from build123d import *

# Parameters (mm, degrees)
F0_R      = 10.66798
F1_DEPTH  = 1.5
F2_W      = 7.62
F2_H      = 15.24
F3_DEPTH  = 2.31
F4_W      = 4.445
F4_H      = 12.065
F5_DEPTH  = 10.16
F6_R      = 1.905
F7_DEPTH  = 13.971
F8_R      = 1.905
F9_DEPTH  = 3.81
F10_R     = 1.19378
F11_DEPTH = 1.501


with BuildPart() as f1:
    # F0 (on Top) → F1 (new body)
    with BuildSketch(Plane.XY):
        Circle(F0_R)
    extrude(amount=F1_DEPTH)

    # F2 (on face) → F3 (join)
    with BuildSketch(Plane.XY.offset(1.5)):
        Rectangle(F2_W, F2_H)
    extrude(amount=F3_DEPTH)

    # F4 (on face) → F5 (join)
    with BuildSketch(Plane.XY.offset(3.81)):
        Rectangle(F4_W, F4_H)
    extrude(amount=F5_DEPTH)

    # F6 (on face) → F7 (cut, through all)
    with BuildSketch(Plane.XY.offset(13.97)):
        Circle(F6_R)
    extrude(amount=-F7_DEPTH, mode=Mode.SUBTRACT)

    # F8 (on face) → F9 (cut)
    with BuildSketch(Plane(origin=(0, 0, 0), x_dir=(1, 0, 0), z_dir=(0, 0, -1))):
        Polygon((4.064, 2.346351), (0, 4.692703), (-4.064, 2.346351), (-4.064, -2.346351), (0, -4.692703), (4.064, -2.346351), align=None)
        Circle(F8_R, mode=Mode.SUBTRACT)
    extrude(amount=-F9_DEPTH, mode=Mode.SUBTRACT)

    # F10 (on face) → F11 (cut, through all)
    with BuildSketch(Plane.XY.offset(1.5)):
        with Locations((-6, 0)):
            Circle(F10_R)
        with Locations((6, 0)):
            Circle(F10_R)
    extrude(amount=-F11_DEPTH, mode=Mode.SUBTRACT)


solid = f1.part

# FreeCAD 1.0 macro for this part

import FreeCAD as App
import Part
import Sketcher
from FreeCAD import Vector
Q = App.Units.Quantity


def add_polygon(sketch, points):
    """Adds a closed chain of lines whose ends are joined by coincident constraints."""
    first, n = sketch.GeometryCount, len(points)
    for a, b in zip(points, points[1:] + points[:1]):
        sketch.addGeometry(Part.LineSegment(App.Vector(*a, 0), App.Vector(*b, 0)), False)
    for i in range(n):
        sketch.addConstraint(Sketcher.Constraint("Coincident", first + i, 2, first + (i + 1) % n, 1))

doc = App.newDocument("Part")
body = doc.addObject("PartDesign::Body", "Body")

# Sketch on XY plane
sketch1 = body.newObject("Sketcher::SketchObject", "Sketch")
sketch1.AttachmentSupport = (doc.getObject("XY_Plane"), [""])
sketch1.MapMode = "FlatFace"
sketch1.addGeometry(Part.Circle(Vector(0, 0, 0), Vector(0, 0, 1), 11), False)
sketch1.addConstraint(Sketcher.Constraint("Coincident", 0, 3, -1, 1))
sketch1.addConstraint(Sketcher.Constraint("Diameter", 0, Q("21.33596 mm")))
pad1 = body.newObject("PartDesign::Pad", "Pad")
pad1.Profile = sketch1
pad1.Length = 1.5

# Sketch on XY plane
sketch2 = body.newObject("Sketcher::SketchObject", "Sketch001")
sketch2.AttachmentSupport = (doc.getObject("XY_Plane"), [""])
sketch2.MapMode = "FlatFace"
sketch2.AttachmentOffset = App.Placement(Vector(0, 0, 1.5), App.Rotation())
add_polygon(sketch2, [(-4, 8), (-4, -8), (4, -8), (4, 8)])  # lines 0-3
sketch2.addConstraint(Sketcher.Constraint("Vertical", 0))
sketch2.addConstraint(Sketcher.Constraint("Horizontal", 1))
sketch2.addConstraint(Sketcher.Constraint("Vertical", 2))
sketch2.addConstraint(Sketcher.Constraint("Horizontal", 3))
sketch2.addConstraint(Sketcher.Constraint("Symmetric", 0, 2, 2, 2, -1, 1))
sketch2.addConstraint(Sketcher.Constraint("DistanceX", 1, 1, 1, 2, Q("0.3 in")))
sketch2.addConstraint(Sketcher.Constraint("DistanceY", 0, 2, 0, 1, Q("0.6 in")))
pad2 = body.newObject("PartDesign::Pad", "Pad001")
pad2.Profile = sketch2
pad2.Length = 2.31

# Sketch on XY plane
sketch3 = body.newObject("Sketcher::SketchObject", "Sketch002")
sketch3.AttachmentSupport = (doc.getObject("XY_Plane"), [""])
sketch3.MapMode = "FlatFace"
sketch3.AttachmentOffset = App.Placement(Vector(0, 0, 0.15 * 25.4), App.Rotation())
add_polygon(sketch3, [(-2.2, 6), (-2.2, -6), (2.2, -6), (2.2, 6)])  # lines 0-3
sketch3.addConstraint(Sketcher.Constraint("Vertical", 0))
sketch3.addConstraint(Sketcher.Constraint("Horizontal", 1))
sketch3.addConstraint(Sketcher.Constraint("Vertical", 2))
sketch3.addConstraint(Sketcher.Constraint("Horizontal", 3))
sketch3.addConstraint(Sketcher.Constraint("Symmetric", 0, 2, 2, 2, -1, 1))
sketch3.addConstraint(Sketcher.Constraint("DistanceX", 1, 1, 1, 2, Q("0.175 in")))
sketch3.addConstraint(Sketcher.Constraint("DistanceY", 0, 2, 0, 1, Q("0.475 in")))
pad3 = body.newObject("PartDesign::Pad", "Pad002")
pad3.Profile = sketch3
pad3.Length = Q("0.4 in")

# Sketch on XY plane
sketch4 = body.newObject("Sketcher::SketchObject", "Sketch003")
sketch4.AttachmentSupport = (doc.getObject("XY_Plane"), [""])
sketch4.MapMode = "FlatFace"
sketch4.AttachmentOffset = App.Placement(Vector(0, 0, 0.55 * 25.4), App.Rotation())
sketch4.addGeometry(Part.Circle(Vector(0, 0, 0), Vector(0, 0, 1), 1.9), False)
sketch4.addConstraint(Sketcher.Constraint("Coincident", 0, 3, -1, 1))
sketch4.addConstraint(Sketcher.Constraint("Diameter", 0, Q("0.15 in")))
pocket1 = body.newObject("PartDesign::Pocket", "Pocket")
pocket1.Profile = sketch4
pocket1.Type = "ThroughAll"

# Sketch on XY plane
sketch5 = body.newObject("Sketcher::SketchObject", "Sketch004")
sketch5.AttachmentSupport = (doc.getObject("XY_Plane"), [""])
sketch5.MapMode = "FlatFace"
add_polygon(sketch5, [(4.1, -2.3), (0, -4.7), (-4.1, -2.3), (-4.1, 2.3), (0, 4.7), (4.1, 2.3)])  # lines 0-5
sketch5.addGeometry(Part.Circle(Vector(0, 0, 0), Vector(0, 0, 1), 1.9), False)  # 6
sketch5.addConstraint(Sketcher.Constraint("Vertical", 2))
sketch5.addConstraint(Sketcher.Constraint("Vertical", 5))
sketch5.addConstraint(Sketcher.Constraint("Coincident", 6, 3, -1, 1))
sketch5.addConstraint(Sketcher.Constraint("Symmetric", 0, 2, 3, 2, -1, 1))
sketch5.addConstraint(Sketcher.Constraint("Symmetric", 1, 2, 4, 2, -1, 1))
sketch5.addConstraint(Sketcher.Constraint("PointOnObject", 0, 2, -2))
sketch5.addConstraint(Sketcher.Constraint("Parallel", 0, 3))
sketch5.addConstraint(Sketcher.Constraint("Horizontal", 2, 2, 4, 2))
sketch5.addConstraint(Sketcher.Constraint("Diameter", 6, Q("0.15 in")))
sketch5.addConstraint(Sketcher.Constraint("Angle", 0, Q("-149.999995 deg")))
sketch5.addConstraint(Sketcher.Constraint("DistanceX", 1, 2, -1, 1, Q("0.16 in")))
sketch5.addConstraint(Sketcher.Constraint("DistanceY", 2, 1, 2, 2, Q("4.692702 mm")))
pocket2 = body.newObject("PartDesign::Pocket", "Pocket001")
pocket2.Profile = sketch5
pocket2.Length = Q("0.15 in")
pocket2.Reversed = True

# Sketch on XY plane
sketch6 = body.newObject("Sketcher::SketchObject", "Sketch005")
sketch6.AttachmentSupport = (doc.getObject("XY_Plane"), [""])
sketch6.MapMode = "FlatFace"
sketch6.AttachmentOffset = App.Placement(Vector(0, 0, 1.5), App.Rotation())
sketch6.addGeometry(Part.Circle(Vector(-6, 0, 0), Vector(0, 0, 1), 1.2), False)
sketch6.addGeometry(Part.Circle(Vector(6, 0, 0), Vector(0, 0, 1), 1.2), False)
sketch6.addConstraint(Sketcher.Constraint("Equal", 0, 1))
sketch6.addConstraint(Sketcher.Constraint("Symmetric", 0, 3, 1, 3, -1, 1))
sketch6.addConstraint(Sketcher.Constraint("PointOnObject", 0, 3, -1))
sketch6.addConstraint(Sketcher.Constraint("Diameter", 0, Q("2.38756 mm")))
sketch6.addConstraint(Sketcher.Constraint("DistanceX", 0, 3, -1, 1, Q("6 mm")))
pocket3 = body.newObject("PartDesign::Pocket", "Pocket002")
pocket3.Profile = sketch6
pocket3.Type = "ThroughAll"

doc.recompute()
